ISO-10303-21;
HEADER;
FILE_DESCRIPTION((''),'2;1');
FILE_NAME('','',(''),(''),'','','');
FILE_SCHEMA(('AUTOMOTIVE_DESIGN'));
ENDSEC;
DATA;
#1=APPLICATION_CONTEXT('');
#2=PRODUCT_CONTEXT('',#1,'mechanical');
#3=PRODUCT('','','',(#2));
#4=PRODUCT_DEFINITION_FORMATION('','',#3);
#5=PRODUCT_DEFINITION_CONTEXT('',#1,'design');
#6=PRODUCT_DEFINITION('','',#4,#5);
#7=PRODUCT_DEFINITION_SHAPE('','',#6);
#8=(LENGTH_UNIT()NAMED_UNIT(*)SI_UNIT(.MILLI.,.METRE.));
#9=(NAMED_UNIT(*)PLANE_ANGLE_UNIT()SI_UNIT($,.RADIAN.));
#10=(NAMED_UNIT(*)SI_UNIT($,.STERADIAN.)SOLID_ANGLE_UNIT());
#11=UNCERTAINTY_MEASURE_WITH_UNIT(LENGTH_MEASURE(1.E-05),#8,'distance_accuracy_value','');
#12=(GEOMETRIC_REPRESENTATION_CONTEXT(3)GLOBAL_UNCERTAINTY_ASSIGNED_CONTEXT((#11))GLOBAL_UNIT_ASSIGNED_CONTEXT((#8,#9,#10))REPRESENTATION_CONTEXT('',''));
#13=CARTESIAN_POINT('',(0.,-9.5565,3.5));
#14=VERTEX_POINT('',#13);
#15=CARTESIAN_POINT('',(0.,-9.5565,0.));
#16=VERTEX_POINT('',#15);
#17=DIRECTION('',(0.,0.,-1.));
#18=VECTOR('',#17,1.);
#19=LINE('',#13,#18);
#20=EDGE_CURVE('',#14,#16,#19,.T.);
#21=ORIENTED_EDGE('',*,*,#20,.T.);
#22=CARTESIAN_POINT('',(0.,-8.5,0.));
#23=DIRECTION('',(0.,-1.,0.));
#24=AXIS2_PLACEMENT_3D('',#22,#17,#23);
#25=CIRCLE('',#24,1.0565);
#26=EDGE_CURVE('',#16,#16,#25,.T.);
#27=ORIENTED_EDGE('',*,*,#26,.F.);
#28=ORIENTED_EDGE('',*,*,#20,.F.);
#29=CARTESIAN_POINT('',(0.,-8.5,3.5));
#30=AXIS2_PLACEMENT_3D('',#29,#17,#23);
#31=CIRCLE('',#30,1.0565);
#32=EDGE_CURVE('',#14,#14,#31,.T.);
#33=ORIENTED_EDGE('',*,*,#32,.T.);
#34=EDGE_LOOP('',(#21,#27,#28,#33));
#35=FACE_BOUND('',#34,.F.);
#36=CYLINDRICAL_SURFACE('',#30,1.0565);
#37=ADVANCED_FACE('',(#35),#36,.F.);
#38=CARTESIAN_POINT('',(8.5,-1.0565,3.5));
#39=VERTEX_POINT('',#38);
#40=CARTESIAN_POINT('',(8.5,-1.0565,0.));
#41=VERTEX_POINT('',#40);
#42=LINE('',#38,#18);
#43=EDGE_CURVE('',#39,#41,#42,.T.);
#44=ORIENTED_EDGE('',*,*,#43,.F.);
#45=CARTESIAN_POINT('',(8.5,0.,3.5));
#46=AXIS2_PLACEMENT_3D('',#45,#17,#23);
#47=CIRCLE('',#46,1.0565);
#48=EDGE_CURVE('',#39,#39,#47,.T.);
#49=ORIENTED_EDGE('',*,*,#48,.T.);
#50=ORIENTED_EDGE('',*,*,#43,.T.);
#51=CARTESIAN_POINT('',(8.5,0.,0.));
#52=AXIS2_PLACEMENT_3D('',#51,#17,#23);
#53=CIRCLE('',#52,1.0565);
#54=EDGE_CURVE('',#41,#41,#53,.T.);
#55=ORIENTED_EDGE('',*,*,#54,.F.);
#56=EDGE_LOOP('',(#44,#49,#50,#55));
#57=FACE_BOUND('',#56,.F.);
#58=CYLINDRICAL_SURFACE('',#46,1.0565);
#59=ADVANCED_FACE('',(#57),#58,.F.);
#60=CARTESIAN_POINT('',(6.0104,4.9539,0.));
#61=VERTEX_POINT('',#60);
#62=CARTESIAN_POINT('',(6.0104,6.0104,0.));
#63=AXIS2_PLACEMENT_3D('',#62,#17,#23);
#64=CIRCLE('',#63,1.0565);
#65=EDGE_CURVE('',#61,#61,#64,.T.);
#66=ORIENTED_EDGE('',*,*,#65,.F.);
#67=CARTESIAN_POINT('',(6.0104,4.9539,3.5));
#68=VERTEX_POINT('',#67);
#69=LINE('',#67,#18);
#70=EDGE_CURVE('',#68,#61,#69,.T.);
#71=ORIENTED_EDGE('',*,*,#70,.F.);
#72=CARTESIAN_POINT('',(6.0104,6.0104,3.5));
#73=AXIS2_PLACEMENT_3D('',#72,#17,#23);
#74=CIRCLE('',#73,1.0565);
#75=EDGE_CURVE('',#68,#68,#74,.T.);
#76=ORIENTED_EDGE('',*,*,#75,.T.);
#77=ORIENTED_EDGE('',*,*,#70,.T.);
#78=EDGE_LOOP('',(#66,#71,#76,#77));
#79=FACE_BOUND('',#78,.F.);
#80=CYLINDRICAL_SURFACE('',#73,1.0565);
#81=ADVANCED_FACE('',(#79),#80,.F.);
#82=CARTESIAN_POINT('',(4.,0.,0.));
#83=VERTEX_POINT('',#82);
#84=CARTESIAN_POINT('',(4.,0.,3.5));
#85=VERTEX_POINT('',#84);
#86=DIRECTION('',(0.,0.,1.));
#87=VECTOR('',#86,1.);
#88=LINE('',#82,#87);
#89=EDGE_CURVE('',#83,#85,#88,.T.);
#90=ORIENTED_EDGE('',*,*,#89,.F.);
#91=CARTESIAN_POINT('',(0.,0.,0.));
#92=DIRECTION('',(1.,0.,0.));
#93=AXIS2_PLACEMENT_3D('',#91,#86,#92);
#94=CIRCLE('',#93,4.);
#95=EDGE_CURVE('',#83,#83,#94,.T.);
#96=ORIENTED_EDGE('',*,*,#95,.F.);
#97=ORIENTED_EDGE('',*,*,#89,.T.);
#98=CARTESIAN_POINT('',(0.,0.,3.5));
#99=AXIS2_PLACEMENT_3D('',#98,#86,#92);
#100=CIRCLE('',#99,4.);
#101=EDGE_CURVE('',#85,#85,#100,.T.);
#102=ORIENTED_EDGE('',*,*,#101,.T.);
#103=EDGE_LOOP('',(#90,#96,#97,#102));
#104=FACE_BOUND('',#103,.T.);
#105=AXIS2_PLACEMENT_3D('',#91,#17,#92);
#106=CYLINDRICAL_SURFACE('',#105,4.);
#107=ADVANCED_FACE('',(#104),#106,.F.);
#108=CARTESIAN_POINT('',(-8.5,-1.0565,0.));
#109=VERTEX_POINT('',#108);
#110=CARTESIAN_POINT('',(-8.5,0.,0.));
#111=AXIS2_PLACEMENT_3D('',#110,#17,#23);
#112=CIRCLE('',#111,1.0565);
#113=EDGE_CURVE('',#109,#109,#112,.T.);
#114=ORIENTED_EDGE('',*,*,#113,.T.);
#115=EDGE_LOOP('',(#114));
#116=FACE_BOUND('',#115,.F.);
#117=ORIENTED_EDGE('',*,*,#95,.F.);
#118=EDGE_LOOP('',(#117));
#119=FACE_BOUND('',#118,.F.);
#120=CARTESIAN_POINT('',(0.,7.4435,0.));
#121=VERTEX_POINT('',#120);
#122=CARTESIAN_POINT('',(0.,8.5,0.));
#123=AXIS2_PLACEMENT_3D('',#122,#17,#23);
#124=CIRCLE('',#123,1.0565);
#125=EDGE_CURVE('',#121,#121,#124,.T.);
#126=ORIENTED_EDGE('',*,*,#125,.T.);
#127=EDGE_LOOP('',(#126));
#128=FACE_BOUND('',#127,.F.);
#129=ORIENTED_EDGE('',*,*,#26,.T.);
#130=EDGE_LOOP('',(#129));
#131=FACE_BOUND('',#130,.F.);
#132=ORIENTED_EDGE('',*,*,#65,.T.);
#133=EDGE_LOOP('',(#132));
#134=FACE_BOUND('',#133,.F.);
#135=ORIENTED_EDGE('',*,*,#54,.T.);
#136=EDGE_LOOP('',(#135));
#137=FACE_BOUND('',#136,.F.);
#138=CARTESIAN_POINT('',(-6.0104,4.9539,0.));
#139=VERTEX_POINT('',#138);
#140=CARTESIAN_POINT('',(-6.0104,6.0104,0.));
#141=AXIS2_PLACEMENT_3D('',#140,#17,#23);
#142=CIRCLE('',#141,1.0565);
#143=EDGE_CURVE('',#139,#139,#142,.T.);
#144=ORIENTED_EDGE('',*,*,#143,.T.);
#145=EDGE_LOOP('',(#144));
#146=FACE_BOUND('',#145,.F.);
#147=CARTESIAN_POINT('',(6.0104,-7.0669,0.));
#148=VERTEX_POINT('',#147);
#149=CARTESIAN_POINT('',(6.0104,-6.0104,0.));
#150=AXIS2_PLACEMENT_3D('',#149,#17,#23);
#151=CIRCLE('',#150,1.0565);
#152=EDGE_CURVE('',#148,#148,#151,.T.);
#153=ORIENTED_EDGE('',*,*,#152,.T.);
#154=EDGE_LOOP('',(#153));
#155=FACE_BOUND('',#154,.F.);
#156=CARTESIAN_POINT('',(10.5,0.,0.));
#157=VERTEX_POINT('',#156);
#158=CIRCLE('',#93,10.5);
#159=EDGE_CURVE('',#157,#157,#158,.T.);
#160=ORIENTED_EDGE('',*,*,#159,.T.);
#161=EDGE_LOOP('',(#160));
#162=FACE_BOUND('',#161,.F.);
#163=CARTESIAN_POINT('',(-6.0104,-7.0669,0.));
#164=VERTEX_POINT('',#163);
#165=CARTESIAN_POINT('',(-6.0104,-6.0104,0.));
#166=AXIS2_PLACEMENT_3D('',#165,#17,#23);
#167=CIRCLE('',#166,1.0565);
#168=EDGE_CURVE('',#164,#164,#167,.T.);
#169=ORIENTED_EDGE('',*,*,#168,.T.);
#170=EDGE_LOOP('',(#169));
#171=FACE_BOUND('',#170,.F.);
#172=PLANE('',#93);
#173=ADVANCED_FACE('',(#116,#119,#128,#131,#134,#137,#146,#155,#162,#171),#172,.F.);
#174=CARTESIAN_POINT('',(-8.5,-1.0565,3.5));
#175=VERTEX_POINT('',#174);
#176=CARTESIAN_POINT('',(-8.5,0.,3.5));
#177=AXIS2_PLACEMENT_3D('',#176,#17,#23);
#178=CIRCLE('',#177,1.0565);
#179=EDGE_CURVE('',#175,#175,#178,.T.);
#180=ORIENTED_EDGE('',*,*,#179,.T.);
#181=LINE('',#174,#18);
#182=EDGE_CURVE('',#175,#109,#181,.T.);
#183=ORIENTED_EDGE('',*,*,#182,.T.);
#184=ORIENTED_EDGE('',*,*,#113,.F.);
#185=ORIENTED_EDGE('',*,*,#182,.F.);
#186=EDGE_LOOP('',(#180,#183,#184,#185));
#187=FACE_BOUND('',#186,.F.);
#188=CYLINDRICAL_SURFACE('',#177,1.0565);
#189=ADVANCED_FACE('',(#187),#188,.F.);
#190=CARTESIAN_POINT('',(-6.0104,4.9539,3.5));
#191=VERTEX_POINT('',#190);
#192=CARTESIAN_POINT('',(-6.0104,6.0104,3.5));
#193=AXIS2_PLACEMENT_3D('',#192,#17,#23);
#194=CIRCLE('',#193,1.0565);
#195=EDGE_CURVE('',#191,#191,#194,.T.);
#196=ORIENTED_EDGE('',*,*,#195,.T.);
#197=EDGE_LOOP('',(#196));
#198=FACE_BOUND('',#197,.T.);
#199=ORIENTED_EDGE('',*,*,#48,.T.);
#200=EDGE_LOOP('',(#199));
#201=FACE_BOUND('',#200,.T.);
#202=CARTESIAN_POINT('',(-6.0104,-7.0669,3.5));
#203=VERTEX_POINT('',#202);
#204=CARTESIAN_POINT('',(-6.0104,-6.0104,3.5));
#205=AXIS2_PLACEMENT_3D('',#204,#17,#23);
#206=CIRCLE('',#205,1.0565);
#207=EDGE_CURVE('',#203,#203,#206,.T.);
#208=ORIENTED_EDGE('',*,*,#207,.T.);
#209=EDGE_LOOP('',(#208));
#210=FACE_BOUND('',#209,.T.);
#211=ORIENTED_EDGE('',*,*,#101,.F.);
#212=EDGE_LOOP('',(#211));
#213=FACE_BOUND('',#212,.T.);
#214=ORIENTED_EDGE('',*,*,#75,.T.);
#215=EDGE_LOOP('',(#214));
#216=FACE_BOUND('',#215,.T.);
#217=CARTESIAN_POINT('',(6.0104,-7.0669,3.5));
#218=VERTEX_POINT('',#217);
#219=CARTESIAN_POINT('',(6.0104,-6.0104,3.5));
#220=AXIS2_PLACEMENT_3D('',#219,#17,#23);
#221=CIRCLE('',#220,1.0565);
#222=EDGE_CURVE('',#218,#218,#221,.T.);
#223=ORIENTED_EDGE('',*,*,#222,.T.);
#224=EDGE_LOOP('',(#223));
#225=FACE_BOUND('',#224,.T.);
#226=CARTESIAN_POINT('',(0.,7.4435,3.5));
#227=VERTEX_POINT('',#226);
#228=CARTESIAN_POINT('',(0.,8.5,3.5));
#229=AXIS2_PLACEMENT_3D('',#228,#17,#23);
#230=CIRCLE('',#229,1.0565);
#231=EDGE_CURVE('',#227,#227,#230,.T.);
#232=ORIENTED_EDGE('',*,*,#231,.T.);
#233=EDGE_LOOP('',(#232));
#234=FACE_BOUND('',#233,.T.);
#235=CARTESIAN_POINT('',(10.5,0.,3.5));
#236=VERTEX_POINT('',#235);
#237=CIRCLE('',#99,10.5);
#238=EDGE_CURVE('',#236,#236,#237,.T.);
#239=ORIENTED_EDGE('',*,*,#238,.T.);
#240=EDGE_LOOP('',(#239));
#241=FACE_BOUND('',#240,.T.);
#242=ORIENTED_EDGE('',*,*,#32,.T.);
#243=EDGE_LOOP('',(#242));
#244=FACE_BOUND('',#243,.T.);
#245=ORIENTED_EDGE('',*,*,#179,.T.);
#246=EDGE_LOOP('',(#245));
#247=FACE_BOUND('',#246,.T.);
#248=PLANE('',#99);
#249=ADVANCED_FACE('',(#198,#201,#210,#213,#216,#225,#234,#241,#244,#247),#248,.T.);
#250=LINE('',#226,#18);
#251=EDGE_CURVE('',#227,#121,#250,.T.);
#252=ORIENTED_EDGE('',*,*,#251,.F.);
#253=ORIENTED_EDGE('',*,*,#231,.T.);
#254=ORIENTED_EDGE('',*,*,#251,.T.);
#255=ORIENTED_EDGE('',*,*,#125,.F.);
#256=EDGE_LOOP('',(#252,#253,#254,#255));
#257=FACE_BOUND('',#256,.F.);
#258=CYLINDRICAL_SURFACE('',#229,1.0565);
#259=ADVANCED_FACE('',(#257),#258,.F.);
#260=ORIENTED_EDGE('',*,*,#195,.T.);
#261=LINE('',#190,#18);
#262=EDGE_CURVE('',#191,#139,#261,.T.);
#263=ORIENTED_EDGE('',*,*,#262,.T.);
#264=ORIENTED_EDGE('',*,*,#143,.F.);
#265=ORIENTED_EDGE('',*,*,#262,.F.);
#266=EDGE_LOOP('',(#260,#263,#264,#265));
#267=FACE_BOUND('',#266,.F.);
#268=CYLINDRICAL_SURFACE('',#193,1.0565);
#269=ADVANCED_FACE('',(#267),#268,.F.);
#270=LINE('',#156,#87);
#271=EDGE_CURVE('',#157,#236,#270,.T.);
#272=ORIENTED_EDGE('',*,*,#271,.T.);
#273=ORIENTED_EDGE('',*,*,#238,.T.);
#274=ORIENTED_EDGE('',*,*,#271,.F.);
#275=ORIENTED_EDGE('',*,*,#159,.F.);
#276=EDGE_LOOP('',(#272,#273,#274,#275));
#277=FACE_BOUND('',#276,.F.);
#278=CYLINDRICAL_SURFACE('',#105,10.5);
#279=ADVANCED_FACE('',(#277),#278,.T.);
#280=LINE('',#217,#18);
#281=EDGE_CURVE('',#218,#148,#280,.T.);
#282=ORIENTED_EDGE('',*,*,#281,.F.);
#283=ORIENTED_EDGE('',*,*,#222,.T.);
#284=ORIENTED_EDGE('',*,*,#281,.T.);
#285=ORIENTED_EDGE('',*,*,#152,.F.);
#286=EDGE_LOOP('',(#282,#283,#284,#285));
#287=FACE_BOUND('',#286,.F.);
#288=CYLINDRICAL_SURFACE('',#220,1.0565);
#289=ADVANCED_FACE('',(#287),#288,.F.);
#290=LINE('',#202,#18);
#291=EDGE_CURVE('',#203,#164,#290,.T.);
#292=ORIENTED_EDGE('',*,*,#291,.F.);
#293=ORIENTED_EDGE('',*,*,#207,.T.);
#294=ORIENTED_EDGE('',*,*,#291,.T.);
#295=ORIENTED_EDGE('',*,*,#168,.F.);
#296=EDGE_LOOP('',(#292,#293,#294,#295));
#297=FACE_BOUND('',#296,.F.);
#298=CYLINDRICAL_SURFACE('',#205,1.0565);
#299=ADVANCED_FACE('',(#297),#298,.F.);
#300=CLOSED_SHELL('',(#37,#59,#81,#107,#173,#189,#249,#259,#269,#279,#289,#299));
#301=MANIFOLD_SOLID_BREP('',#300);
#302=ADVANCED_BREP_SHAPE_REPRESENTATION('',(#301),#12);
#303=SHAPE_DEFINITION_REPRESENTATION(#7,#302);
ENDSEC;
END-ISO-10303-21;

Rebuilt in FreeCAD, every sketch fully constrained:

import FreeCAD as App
import Part
import Sketcher
from FreeCAD import Vector

doc = App.newDocument("Part")
body = doc.addObject("PartDesign::Body", "Body")

# Sketch on XY plane
sketch1 = body.newObject("Sketcher::SketchObject", "Sketch")
sketch1.AttachmentSupport = (doc.getObject("XY_Plane"), [""])
sketch1.MapMode = "FlatFace"
sketch1.addGeometry(Part.Circle(Vector(0, 0, 0), Vector(0, 0, 1), 10.5), False)
sketch1.addGeometry(Part.Circle(Vector(0, 0, 0), Vector(0, 0, 1), 4), False)
sketch1.addConstraint(Sketcher.Constraint("Coincident", 0, 3, -1, 1))
sketch1.addConstraint(Sketcher.Constraint("Coincident", 1, 3, -1, 1))
sketch1.addConstraint(Sketcher.Constraint("Diameter", 0, 21.0))
sketch1.addConstraint(Sketcher.Constraint("Diameter", 1, 8.0))
pad1 = body.newObject("PartDesign::Pad", "Pad")
pad1.Profile = sketch1
pad1.Length = 3.5

# Sketch on XY plane
sketch2 = body.newObject("Sketcher::SketchObject", "Sketch001")
sketch2.AttachmentSupport = (doc.getObject("XY_Plane"), [""])
sketch2.MapMode = "FlatFace"
sketch2.AttachmentOffset = App.Placement(Vector(0, 0, 3.5), App.Rotation())
sketch2.addGeometry(Part.Circle(Vector(0, 8.5, 0), Vector(0, 0, 1), 1.1), False)
sketch2.addGeometry(Part.Circle(Vector(-6, 6, 0), Vector(0, 0, 1), 1.1), False)
sketch2.addGeometry(Part.Circle(Vector(-8.5, 0, 0), Vector(0, 0, 1), 1.1), False)
sketch2.addGeometry(Part.Circle(Vector(-6, -6, 0), Vector(0, 0, 1), 1.1), False)
sketch2.addGeometry(Part.Circle(Vector(0, -8.5, 0), Vector(0, 0, 1), 1.1), False)
sketch2.addGeometry(Part.Circle(Vector(6, -6, 0), Vector(0, 0, 1), 1.1), False)
sketch2.addGeometry(Part.Circle(Vector(8.5, 0, 0), Vector(0, 0, 1), 1.1), False)
sketch2.addGeometry(Part.Circle(Vector(6, 6, 0), Vector(0, 0, 1), 1.1), False)
sketch2.addConstraint(Sketcher.Constraint("Equal", 0, 1))
sketch2.addConstraint(Sketcher.Constraint("Equal", 1, 2))
sketch2.addConstraint(Sketcher.Constraint("Equal", 2, 3))
sketch2.addConstraint(Sketcher.Constraint("Equal", 3, 4))
sketch2.addConstraint(Sketcher.Constraint("Equal", 4, 5))
sketch2.addConstraint(Sketcher.Constraint("Equal", 5, 6))
sketch2.addConstraint(Sketcher.Constraint("Equal", 6, 7))
sketch2.addConstraint(Sketcher.Constraint("Symmetric", 0, 3, 4, 3, -1, 1))
sketch2.addConstraint(Sketcher.Constraint("Symmetric", 1, 3, 5, 3, -1, 1))
sketch2.addConstraint(Sketcher.Constraint("Symmetric", 2, 3, 6, 3, -1, 1))
sketch2.addConstraint(Sketcher.Constraint("Symmetric", 3, 3, 7, 3, -1, 1))
sketch2.addConstraint(Sketcher.Constraint("Symmetric", 3, 3, 5, 3, -2))
sketch2.addConstraint(Sketcher.Constraint("PointOnObject", 0, 3, -2))
sketch2.addConstraint(Sketcher.Constraint("PointOnObject", 2, 3, -1))
sketch2.addConstraint(Sketcher.Constraint("Diameter", 0, 2.113))
sketch2.addConstraint(Sketcher.Constraint("DistanceY", 4, 3, 0, 3, 17.0))
sketch2.addConstraint(Sketcher.Constraint("DistanceX", 2, 3, -1, 1, 8.5))
sketch2.addConstraint(Sketcher.Constraint("DistanceX", 1, 3, -1, 1, 6.0104))
sketch2.addConstraint(Sketcher.Constraint("DistanceY", -1, 1, 1, 3, 6.0104))
doc.recompute()
hole = body.newObject("PartDesign::Hole", "Hole")
hole.Profile = sketch2
hole.ThreadType = "None"
hole.Diameter = 2.113
hole.DepthType = "ThroughAll"

doc.recompute()
